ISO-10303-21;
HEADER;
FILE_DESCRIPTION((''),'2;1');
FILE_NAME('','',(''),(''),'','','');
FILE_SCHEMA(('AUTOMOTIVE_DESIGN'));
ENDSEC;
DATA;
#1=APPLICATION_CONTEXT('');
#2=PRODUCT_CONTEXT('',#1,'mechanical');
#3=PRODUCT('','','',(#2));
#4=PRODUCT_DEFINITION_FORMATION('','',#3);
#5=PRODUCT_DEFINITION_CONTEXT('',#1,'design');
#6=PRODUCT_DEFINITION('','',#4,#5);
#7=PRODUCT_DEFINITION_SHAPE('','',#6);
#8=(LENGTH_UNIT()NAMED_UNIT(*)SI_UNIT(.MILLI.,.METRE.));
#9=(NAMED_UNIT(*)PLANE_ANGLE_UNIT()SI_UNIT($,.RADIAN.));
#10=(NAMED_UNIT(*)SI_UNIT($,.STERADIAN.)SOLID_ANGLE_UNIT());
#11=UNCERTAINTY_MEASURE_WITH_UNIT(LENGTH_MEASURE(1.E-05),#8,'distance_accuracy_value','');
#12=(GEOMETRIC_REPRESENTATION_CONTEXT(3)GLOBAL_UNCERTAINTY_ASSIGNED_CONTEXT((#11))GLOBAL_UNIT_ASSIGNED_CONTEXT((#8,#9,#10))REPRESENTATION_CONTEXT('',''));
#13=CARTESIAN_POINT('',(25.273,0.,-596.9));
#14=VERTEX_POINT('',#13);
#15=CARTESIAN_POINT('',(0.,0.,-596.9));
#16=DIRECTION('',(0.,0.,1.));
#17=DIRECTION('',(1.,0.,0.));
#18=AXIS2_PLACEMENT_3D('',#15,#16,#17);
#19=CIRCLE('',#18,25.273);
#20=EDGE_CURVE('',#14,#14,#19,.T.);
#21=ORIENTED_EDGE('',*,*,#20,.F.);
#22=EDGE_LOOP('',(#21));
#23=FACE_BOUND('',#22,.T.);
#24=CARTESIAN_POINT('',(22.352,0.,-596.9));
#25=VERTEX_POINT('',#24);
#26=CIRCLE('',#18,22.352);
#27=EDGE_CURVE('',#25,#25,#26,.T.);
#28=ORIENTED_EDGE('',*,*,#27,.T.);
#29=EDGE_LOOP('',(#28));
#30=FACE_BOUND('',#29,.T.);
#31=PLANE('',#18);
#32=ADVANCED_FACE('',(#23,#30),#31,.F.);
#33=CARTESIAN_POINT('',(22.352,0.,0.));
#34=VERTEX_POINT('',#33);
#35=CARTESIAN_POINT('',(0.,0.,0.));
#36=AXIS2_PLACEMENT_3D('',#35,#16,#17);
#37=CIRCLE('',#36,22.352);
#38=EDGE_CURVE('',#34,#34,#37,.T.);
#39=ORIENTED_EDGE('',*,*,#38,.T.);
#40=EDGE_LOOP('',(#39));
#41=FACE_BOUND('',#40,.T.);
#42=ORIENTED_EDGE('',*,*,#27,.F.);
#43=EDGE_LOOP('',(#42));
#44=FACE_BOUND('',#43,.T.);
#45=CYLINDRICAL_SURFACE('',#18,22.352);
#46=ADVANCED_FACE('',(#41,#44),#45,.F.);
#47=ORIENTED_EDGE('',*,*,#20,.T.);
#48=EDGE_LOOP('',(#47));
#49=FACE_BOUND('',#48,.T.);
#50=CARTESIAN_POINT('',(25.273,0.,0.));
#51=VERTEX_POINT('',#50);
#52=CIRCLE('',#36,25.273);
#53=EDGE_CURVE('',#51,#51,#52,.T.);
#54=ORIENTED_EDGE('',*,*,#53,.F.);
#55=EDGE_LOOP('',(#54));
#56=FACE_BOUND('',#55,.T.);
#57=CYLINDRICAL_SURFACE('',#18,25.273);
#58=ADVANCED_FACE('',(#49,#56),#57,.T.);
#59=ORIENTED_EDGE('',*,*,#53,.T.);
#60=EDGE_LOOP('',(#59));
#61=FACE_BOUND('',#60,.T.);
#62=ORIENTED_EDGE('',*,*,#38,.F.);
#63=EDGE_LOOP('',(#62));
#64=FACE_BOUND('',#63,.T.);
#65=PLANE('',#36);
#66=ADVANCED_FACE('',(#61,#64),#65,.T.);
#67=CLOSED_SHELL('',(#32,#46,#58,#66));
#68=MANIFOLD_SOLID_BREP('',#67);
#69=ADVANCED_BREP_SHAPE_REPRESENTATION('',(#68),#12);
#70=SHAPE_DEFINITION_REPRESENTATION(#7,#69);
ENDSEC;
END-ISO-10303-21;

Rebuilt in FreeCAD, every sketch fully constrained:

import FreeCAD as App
import Part
import Sketcher
from FreeCAD import Vector
Q = App.Units.Quantity

doc = App.newDocument("Part")
body = doc.addObject("PartDesign::Body", "Body")

sketch1 = body.newObject("Sketcher::SketchObject", "Sketch")
sketch1.AttachmentSupport = (doc.getObject("XY_Plane"), [""])
sketch1.MapMode = "FlatFace"
sketch1.addGeometry(Part.Circle(Vector(0, 0, 0), Vector(0, 0, 1), 25), False)
sketch1.addGeometry(Part.Circle(Vector(0, 0, 0), Vector(0, 0, 1), 22), False)
sketch1.addConstraint(Sketcher.Constraint("Coincident", 0, 3, -1, 1))
sketch1.addConstraint(Sketcher.Constraint("Coincident", 1, 3, -1, 1))
sketch1.addConstraint(Sketcher.Constraint("Diameter", 0, Q("1.99 in")))
sketch1.addConstraint(Sketcher.Constraint("Diameter", 1, Q("1.76 in")))
pad1 = body.newObject("PartDesign::Pad", "Pad")
pad1.Profile = sketch1
pad1.Length = Q("23.5 in")
pad1.Reversed = True

doc.recompute()
